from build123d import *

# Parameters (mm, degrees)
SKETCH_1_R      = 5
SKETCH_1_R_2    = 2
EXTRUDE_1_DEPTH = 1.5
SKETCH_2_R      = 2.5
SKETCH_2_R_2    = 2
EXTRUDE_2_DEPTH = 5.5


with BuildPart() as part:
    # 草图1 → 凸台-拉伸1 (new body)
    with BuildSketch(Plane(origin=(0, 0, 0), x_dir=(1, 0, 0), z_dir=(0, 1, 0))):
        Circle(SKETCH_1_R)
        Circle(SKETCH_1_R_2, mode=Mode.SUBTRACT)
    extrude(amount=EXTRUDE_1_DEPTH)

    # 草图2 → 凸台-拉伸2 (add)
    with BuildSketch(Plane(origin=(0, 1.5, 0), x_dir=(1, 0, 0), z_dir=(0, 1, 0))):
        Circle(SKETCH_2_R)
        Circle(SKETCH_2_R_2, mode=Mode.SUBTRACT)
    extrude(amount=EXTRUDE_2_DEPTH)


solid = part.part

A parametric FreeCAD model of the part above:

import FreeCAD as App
import Part
import Sketcher
from FreeCAD import Vector

doc = App.newDocument("Part")
body = doc.addObject("PartDesign::Body", "Body")

sketch1 = body.newObject("Sketcher::SketchObject", "Sketch")
sketch1.AttachmentSupport = (doc.getObject("XZ_Plane"), [""])
sketch1.MapMode = "FlatFace"
sketch1.addGeometry([
    Part.Circle(Vector(0, 0, 0), Vector(0, 0, 1), 5),
    Part.Circle(Vector(0, 0, 0), Vector(0, 0, 1), 2),
], False)
sketch1.addConstraint([
    Sketcher.Constraint("Coincident", 0, 3, -1, 1),
    Sketcher.Constraint("Coincident", 1, 3, -1, 1),
    Sketcher.Constraint("Diameter", 0, 10.0),
    Sketcher.Constraint("Diameter", 1, 4.0),
])
pad1 = body.newObject("PartDesign::Pad", "Pad")
pad1.Profile = sketch1
pad1.Length = 1.5
pad1.Reversed = True

sketch2 = body.newObject("Sketcher::SketchObject", "Sketch001")
sketch2.AttachmentSupport = (doc.getObject("XZ_Plane"), [""])
sketch2.MapMode = "FlatFace"
sketch2.AttachmentOffset = App.Placement(Vector(0, 0, -1.5), App.Rotation())
sketch2.addGeometry([
    Part.Circle(Vector(0, 0, 0), Vector(0, 0, 1), 2.5),
    Part.Circle(Vector(0, 0, 0), Vector(0, 0, 1), 2),
], False)
sketch2.addConstraint([
    Sketcher.Constraint("Coincident", 0, 3, -1, 1),
    Sketcher.Constraint("Coincident", 1, 3, -1, 1),
    Sketcher.Constraint("Diameter", 0, 5.0),
    Sketcher.Constraint("Diameter", 1, 4.0),
])
pad2 = body.newObject("PartDesign::Pad", "Pad001")
pad2.Profile = sketch2
pad2.Length = 5.5
pad2.Reversed = True

doc.recompute()
